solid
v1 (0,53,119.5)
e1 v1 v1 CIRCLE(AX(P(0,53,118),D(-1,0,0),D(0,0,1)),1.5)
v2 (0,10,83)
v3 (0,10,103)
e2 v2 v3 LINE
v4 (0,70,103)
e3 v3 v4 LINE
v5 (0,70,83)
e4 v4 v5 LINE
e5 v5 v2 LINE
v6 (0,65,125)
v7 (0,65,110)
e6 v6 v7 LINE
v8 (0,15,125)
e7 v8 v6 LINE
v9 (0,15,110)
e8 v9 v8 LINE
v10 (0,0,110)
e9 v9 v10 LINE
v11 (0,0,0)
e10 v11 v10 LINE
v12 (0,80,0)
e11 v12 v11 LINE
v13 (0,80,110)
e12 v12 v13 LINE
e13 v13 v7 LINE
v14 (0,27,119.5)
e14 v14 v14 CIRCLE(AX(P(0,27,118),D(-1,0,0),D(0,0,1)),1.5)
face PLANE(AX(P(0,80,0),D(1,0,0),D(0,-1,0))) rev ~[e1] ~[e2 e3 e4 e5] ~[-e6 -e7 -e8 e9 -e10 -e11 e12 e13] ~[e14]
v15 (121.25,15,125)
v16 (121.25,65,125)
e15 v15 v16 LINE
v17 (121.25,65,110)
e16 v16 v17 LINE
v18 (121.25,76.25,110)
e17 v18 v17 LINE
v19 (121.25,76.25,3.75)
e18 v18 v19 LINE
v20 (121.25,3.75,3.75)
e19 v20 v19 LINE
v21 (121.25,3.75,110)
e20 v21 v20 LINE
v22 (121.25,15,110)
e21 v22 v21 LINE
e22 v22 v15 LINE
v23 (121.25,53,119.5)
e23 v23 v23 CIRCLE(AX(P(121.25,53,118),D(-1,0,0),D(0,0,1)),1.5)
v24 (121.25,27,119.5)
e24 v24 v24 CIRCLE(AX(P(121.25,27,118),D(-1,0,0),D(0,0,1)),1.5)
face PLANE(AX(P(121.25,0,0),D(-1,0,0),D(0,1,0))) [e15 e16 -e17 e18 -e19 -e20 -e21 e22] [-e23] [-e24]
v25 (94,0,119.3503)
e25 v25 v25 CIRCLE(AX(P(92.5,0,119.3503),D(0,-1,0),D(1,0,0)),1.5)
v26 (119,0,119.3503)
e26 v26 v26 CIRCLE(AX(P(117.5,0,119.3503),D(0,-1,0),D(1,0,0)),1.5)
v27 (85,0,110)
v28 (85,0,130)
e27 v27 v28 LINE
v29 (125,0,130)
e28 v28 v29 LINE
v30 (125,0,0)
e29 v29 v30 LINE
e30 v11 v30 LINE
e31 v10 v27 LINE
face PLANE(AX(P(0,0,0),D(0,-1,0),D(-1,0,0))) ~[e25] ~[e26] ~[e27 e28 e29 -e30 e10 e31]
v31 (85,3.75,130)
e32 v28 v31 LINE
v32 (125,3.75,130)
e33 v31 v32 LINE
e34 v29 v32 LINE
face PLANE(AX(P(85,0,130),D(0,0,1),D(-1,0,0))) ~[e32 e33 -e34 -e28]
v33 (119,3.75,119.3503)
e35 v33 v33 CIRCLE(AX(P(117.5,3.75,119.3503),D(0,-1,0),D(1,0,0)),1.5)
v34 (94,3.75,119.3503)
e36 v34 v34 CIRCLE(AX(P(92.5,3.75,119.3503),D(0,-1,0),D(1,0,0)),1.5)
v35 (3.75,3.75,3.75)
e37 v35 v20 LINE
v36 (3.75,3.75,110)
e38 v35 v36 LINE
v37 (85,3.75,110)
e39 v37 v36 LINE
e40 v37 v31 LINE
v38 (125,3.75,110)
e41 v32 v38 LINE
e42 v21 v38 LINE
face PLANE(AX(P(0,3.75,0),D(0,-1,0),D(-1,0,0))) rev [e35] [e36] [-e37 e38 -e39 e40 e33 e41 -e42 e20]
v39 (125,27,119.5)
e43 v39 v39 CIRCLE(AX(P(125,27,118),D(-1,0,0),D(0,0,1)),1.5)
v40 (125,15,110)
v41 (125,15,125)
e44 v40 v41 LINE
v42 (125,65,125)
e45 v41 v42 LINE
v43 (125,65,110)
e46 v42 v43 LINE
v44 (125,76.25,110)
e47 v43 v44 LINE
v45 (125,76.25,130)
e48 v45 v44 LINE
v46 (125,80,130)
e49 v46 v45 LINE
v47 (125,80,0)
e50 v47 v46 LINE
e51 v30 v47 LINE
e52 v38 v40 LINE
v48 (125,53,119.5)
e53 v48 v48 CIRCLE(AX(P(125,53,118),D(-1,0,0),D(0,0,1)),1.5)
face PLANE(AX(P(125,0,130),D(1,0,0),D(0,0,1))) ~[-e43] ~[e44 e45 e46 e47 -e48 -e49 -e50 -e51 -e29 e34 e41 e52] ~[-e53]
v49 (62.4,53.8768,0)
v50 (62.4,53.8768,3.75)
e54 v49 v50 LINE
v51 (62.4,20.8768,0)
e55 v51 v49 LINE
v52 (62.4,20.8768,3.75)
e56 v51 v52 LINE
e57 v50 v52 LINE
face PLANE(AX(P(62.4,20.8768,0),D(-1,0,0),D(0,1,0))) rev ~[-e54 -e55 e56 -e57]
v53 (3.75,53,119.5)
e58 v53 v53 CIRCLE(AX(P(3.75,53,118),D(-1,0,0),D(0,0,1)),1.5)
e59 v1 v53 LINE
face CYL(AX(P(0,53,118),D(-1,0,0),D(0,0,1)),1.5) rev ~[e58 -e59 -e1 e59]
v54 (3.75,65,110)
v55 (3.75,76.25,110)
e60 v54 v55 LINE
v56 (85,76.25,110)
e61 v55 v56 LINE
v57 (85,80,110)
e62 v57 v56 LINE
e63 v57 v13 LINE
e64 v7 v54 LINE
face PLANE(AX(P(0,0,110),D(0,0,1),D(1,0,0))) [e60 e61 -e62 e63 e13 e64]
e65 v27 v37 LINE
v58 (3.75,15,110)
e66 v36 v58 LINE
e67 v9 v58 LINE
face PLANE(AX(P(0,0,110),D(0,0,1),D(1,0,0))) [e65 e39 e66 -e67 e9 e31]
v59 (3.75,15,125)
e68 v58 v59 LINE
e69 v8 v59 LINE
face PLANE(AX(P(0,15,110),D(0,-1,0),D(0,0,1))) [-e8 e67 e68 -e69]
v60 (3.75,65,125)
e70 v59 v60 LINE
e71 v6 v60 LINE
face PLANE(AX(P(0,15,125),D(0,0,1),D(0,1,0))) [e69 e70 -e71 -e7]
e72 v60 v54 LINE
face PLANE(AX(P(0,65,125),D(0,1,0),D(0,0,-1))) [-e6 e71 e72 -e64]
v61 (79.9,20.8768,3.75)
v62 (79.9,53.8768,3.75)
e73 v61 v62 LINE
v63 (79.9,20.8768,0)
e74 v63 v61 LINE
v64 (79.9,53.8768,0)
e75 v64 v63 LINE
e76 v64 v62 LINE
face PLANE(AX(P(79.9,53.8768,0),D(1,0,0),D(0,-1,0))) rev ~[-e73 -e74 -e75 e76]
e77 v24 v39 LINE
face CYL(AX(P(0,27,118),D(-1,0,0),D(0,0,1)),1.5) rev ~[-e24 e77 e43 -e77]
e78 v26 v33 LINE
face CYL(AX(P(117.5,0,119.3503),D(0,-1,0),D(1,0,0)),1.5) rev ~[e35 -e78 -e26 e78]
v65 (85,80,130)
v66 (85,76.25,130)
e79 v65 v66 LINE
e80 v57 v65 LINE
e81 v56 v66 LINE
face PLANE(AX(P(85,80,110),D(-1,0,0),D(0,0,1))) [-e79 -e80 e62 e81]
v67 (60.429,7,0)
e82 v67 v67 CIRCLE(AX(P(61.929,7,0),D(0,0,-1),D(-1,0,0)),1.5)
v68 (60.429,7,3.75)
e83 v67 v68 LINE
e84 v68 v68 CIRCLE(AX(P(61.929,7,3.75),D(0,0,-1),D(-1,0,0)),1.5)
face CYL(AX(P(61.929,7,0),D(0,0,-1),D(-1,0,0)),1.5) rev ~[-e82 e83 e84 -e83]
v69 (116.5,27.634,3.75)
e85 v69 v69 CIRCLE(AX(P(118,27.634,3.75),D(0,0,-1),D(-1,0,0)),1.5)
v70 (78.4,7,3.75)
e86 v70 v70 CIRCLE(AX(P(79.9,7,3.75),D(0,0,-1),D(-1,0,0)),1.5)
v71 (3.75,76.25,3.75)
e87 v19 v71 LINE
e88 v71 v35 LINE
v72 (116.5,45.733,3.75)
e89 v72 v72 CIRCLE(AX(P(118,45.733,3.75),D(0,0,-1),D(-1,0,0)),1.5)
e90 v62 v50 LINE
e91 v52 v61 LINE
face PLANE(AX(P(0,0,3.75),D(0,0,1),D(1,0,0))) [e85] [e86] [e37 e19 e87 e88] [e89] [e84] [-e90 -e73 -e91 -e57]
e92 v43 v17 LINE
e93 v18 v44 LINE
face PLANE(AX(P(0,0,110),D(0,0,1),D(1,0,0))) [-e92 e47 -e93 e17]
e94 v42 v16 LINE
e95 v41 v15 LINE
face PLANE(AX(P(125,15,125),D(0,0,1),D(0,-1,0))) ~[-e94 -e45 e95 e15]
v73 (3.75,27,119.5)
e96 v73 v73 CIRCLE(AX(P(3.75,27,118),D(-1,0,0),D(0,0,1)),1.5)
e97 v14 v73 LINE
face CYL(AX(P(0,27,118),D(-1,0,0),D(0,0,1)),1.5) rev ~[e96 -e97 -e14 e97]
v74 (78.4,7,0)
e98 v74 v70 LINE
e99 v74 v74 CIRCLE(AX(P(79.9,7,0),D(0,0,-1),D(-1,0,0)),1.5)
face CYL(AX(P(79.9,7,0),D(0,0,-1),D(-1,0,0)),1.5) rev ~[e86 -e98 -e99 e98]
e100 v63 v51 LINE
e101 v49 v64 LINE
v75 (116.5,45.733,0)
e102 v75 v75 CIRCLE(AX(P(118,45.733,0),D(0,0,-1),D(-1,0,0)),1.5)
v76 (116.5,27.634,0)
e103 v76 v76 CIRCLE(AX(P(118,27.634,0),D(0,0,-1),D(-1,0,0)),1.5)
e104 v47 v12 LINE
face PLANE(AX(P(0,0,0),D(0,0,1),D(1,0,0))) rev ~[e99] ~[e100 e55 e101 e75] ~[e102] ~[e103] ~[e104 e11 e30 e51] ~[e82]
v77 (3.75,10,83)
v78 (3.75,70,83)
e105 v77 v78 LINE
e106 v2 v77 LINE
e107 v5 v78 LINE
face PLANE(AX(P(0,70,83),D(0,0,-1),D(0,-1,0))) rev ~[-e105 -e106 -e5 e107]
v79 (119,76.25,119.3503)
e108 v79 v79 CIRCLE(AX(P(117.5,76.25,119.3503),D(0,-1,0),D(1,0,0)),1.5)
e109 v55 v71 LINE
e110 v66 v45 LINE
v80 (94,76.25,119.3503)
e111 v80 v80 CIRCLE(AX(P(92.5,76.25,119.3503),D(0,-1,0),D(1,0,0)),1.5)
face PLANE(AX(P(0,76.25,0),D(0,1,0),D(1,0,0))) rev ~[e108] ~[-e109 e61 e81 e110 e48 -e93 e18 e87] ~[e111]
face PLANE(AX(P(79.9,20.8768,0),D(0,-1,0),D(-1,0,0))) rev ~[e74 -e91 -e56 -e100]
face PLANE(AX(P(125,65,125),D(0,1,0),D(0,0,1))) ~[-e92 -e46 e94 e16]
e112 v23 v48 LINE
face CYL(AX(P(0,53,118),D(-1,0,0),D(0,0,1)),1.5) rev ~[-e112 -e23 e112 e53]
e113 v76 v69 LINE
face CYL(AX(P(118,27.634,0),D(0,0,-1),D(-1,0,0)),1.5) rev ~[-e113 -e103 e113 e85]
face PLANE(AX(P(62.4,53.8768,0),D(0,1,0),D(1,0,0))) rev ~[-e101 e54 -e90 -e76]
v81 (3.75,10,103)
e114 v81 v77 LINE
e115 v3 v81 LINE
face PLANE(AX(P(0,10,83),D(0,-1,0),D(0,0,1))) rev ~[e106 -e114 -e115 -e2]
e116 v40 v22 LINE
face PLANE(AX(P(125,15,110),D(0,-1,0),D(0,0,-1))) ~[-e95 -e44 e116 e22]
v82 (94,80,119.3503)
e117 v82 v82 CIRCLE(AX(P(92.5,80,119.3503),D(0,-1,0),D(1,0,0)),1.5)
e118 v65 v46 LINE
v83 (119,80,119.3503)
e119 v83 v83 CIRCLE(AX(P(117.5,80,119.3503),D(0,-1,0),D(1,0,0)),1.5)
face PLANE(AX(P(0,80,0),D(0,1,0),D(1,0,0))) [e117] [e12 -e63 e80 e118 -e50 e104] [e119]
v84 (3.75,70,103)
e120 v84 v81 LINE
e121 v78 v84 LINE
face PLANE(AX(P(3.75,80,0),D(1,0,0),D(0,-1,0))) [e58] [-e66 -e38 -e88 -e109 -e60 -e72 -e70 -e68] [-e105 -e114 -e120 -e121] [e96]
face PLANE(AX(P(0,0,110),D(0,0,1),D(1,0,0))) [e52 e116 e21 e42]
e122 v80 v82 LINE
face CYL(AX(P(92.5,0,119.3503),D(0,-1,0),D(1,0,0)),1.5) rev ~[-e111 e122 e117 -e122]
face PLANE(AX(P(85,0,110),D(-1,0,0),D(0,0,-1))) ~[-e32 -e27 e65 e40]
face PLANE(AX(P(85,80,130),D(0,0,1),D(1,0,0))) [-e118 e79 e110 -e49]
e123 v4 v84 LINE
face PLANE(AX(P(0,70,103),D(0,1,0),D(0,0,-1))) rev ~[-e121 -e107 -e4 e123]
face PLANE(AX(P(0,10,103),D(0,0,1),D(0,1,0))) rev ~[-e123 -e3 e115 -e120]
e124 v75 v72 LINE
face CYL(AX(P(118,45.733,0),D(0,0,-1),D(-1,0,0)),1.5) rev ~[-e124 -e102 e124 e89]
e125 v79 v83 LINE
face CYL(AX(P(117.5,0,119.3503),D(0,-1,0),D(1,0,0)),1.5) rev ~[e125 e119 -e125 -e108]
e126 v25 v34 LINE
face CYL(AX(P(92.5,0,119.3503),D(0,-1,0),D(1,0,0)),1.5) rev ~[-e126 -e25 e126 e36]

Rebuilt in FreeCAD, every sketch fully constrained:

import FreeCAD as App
import Part
import Sketcher

V = App.Vector


def faces_at(feature, points):
    """Names of the faces that lie closest to the given points."""
    faces = feature.Shape.Faces
    near = lambda p: min(range(len(faces)), key=lambda i: faces[i].distToShape(Part.Vertex(*p))[0])
    return sorted({f"Face{near(p) + 1}" for p in points})


def add_polygon(sketch, points):
    """Adds a closed chain of lines whose ends are joined by coincident constraints."""
    first, n = sketch.GeometryCount, len(points)
    for a, b in zip(points, points[1:] + points[:1]):
        sketch.addGeometry(Part.LineSegment(App.Vector(*a, 0), App.Vector(*b, 0)), False)
    for i in range(n):
        sketch.addConstraint(Sketcher.Constraint("Coincident", first + i, 2, first + (i + 1) % n, 1))

doc = App.newDocument("Part")
body = doc.addObject("PartDesign::Body", "Body")

# Sketch on XY plane
sketch1 = doc.addObject("Sketcher::SketchObject", "Sketch")
body.addObject(sketch1)
sketch1.AttachmentSupport = (doc.XY_Plane, [""])
sketch1.MapMode = "FlatFace"
add_polygon(sketch1, [(0, 80), (0, 0), (125, 0), (125, 80)])  # lines 0-3
sketch1.addConstraint(Sketcher.Constraint("Vertical", 0))
sketch1.addConstraint(Sketcher.Constraint("Horizontal", 1))
sketch1.addConstraint(Sketcher.Constraint("Vertical", 2))
sketch1.addConstraint(Sketcher.Constraint("Horizontal", 3))
sketch1.addConstraint(Sketcher.Constraint("Coincident", 0, 2, -1, 1))
sketch1.addConstraint(Sketcher.Constraint("DistanceX", 1, 1, 1, 2, 125.0))
sketch1.addConstraint(Sketcher.Constraint("DistanceY", 0, 2, 0, 1, 80.0))
pad1 = doc.addObject("PartDesign::Pad", "Pad")
body.addObject(pad1)
pad1.Profile = sketch1
pad1.Length = 110
doc.recompute()

thickness = doc.addObject("PartDesign::Thickness", "Thickness")
body.addObject(thickness)
thickness.Base = (pad1, faces_at(pad1, [(83.333, 26.667, 110)]))
thickness.Value = 3.75
thickness.Reversed = True
thickness.Join = "Intersection"

# Sketch on XY plane
sketch2 = doc.addObject("Sketcher::SketchObject", "Sketch001")
body.addObject(sketch2)
sketch2.AttachmentSupport = (doc.XY_Plane, [""])
sketch2.MapMode = "FlatFace"
sketch2.addGeometry(Part.Circle(V(118, 27.6, 0), V(0, 0, 1), 1.5), False)  # 0
sketch2.addGeometry(Part.Circle(V(118, 45.7, 0), V(0, 0, 1), 1.5), False)  # 1
sketch2.addGeometry(Part.Circle(V(79.9, 7, 0), V(0, 0, 1), 1.5), False)  # 2
sketch2.addGeometry(Part.Circle(V(61.9, 7, 0), V(0, 0, 1), 1.5), False)  # 3
add_polygon(sketch2, [(62.4, 20.9), (62.4, 53.9), (79.9, 53.9), (79.9, 20.9)])  # lines 4-7
sketch2.addConstraint(Sketcher.Constraint("Vertical", 4))
sketch2.addConstraint(Sketcher.Constraint("Horizontal", 5))
sketch2.addConstraint(Sketcher.Constraint("Vertical", 6))
sketch2.addConstraint(Sketcher.Constraint("Horizontal", 7))
sketch2.addConstraint(Sketcher.Constraint("Equal", 0, 1))
sketch2.addConstraint(Sketcher.Constraint("Equal", 1, 2))
sketch2.addConstraint(Sketcher.Constraint("Equal", 2, 3))
sketch2.addConstraint(Sketcher.Constraint("Horizontal", 2, 3, 3, 3))
sketch2.addConstraint(Sketcher.Constraint("Vertical", 0, 3, 1, 3))
sketch2.addConstraint(Sketcher.Constraint("Vertical", 2, 3, 5, 2))
sketch2.addConstraint(Sketcher.Constraint("Diameter", 0, 3.0))
sketch2.addConstraint(Sketcher.Constraint("DistanceY", 4, 1, 4, 2, 33.0))
sketch2.addConstraint(Sketcher.Constraint("DistanceX", 5, 1, 5, 2, 17.5))
sketch2.addConstraint(Sketcher.Constraint("DistanceY", -1, 1, 2, 3, 7.0))
sketch2.addConstraint(Sketcher.Constraint("DistanceX", -1, 1, 0, 3, 118.0))
sketch2.addConstraint(Sketcher.Constraint("DistanceY", -1, 1, 0, 3, 27.634))
sketch2.addConstraint(Sketcher.Constraint("DistanceY", -1, 1, 1, 3, 45.733))
sketch2.addConstraint(Sketcher.Constraint("DistanceX", -1, 1, 2, 3, 79.9))
sketch2.addConstraint(Sketcher.Constraint("DistanceY", -1, 1, 6, 2, 20.8768))
sketch2.addConstraint(Sketcher.Constraint("DistanceX", -1, 1, 3, 3, 61.929))
pocket1 = doc.addObject("PartDesign::Pocket", "Pocket")
body.addObject(pocket1)
pocket1.Profile = sketch2
pocket1.Length = 20
pocket1.Reversed = True

# Sketch on XZ plane
sketch3 = doc.addObject("Sketcher::SketchObject", "Sketch002")
body.addObject(sketch3)
sketch3.AttachmentSupport = (doc.XZ_Plane, [""])
sketch3.MapMode = "FlatFace"
sketch3.AttachmentOffset = App.Placement(V(0, 0, -80), App.Rotation())
add_polygon(sketch3, [(125, 110), (85, 110), (85, 130), (125, 130)])  # lines 0-3
sketch3.addConstraint(Sketcher.Constraint("Horizontal", 0))
sketch3.addConstraint(Sketcher.Constraint("Vertical", 1))
sketch3.addConstraint(Sketcher.Constraint("Horizontal", 2))
sketch3.addConstraint(Sketcher.Constraint("Vertical", 3))
sketch3.addConstraint(Sketcher.Constraint("DistanceX", 0, 2, 0, 1, 40.0))
sketch3.addConstraint(Sketcher.Constraint("DistanceY", 1, 1, 1, 2, 20.0))
sketch3.addConstraint(Sketcher.Constraint("DistanceX", -1, 1, 0, 2, 85.0))
sketch3.addConstraint(Sketcher.Constraint("DistanceY", -1, 1, 0, 2, 110.0))
pad2 = doc.addObject("PartDesign::Pad", "Pad001")
body.addObject(pad2)
pad2.Profile = sketch3
pad2.Length = 3.75
doc.recompute()

datumplane = doc.addObject("PartDesign::Plane", "DatumPlane")
body.addObject(datumplane)
datumplane.AttachmentSupport = (doc.XZ_Plane, [""])
datumplane.MapMode = "FlatFace"
datumplane.AttachmentOffset = App.Placement(V(0, 0, -40), App.Rotation())
mirrored = doc.addObject("PartDesign::Mirrored", "Mirrored")
body.addObject(mirrored)
mirrored.Originals = [pad2]
mirrored.MirrorPlane = (datumplane, [""])
body.Tip = mirrored

# Sketch on YZ plane
sketch4 = doc.addObject("Sketcher::SketchObject", "Sketch003")
body.addObject(sketch4)
sketch4.AttachmentSupport = (doc.YZ_Plane, [""])
sketch4.MapMode = "FlatFace"
add_polygon(sketch4, [(65, 110), (15, 110), (15, 125), (65, 125)])  # lines 0-3
sketch4.addConstraint(Sketcher.Constraint("Horizontal", 0))
sketch4.addConstraint(Sketcher.Constraint("Vertical", 1))
sketch4.addConstraint(Sketcher.Constraint("Horizontal", 2))
sketch4.addConstraint(Sketcher.Constraint("Vertical", 3))
sketch4.addConstraint(Sketcher.Constraint("DistanceX", 0, 2, 0, 1, 50.0))
sketch4.addConstraint(Sketcher.Constraint("DistanceY", 1, 1, 1, 2, 15.0))
sketch4.addConstraint(Sketcher.Constraint("DistanceX", -1, 1, 0, 2, 15.0))
sketch4.addConstraint(Sketcher.Constraint("DistanceY", -1, 1, 0, 2, 110.0))
pad3 = doc.addObject("PartDesign::Pad", "Pad002")
body.addObject(pad3)
pad3.Profile = sketch4
pad3.Length = 3.75
doc.recompute()

datumplane2 = doc.addObject("PartDesign::Plane", "DatumPlane001")
body.addObject(datumplane2)
datumplane2.AttachmentSupport = (doc.YZ_Plane, [""])
datumplane2.MapMode = "FlatFace"
datumplane2.AttachmentOffset = App.Placement(V(0, 0, 62.5), App.Rotation())
mirrored2 = doc.addObject("PartDesign::Mirrored", "Mirrored001")
body.addObject(mirrored2)
mirrored2.Originals = [pad3]
mirrored2.MirrorPlane = (datumplane2, [""])
body.Tip = mirrored2

# Sketch on YZ plane
sketch5 = doc.addObject("Sketcher::SketchObject", "Sketch004")
body.addObject(sketch5)
sketch5.AttachmentSupport = (doc.YZ_Plane, [""])
sketch5.MapMode = "FlatFace"
add_polygon(sketch5, [(10, 103), (70, 103), (70, 83), (10, 83)])  # lines 0-3
sketch5.addConstraint(Sketcher.Constraint("Horizontal", 0))
sketch5.addConstraint(Sketcher.Constraint("Vertical", 1))
sketch5.addConstraint(Sketcher.Constraint("Horizontal", 2))
sketch5.addConstraint(Sketcher.Constraint("Vertical", 3))
sketch5.addConstraint(Sketcher.Constraint("DistanceX", 0, 1, 0, 2, 60.0))
sketch5.addConstraint(Sketcher.Constraint("DistanceY", 1, 2, 1, 1, 20.0))
sketch5.addConstraint(Sketcher.Constraint("DistanceX", -1, 1, 2, 2, 10.0))
sketch5.addConstraint(Sketcher.Constraint("DistanceY", -1, 1, 0, 2, 103.0))
pocket2 = doc.addObject("PartDesign::Pocket", "Pocket001")
body.addObject(pocket2)
pocket2.Profile = sketch5
pocket2.Length = 10
pocket2.Reversed = True

# Sketch on YZ plane
sketch6 = doc.addObject("Sketcher::SketchObject", "Sketch005")
body.addObject(sketch6)
sketch6.AttachmentSupport = (doc.YZ_Plane, [""])
sketch6.MapMode = "FlatFace"
sketch6.addGeometry(Part.Circle(V(53, 118, 0), V(0, 0, 1), 1.5), False)
sketch6.addGeometry(Part.Circle(V(27, 118, 0), V(0, 0, 1), 1.5), False)
sketch6.addConstraint(Sketcher.Constraint("Equal", 0, 1))
sketch6.addConstraint(Sketcher.Constraint("Horizontal", 0, 3, 1, 3))
sketch6.addConstraint(Sketcher.Constraint("Diameter", 0, 3.0))
sketch6.addConstraint(Sketcher.Constraint("DistanceX", -1, 1, 0, 3, 53.0))
sketch6.addConstraint(Sketcher.Constraint("DistanceY", -1, 1, 0, 3, 118.0))
sketch6.addConstraint(Sketcher.Constraint("DistanceX", -1, 1, 1, 3, 27.0))
pocket3 = doc.addObject("PartDesign::Pocket", "Pocket002")
body.addObject(pocket3)
pocket3.Profile = sketch6
pocket3.Length = 200
pocket3.Reversed = True

# Sketch on XZ plane
sketch7 = doc.addObject("Sketcher::SketchObject", "Sketch006")
body.addObject(sketch7)
sketch7.AttachmentSupport = (doc.XZ_Plane, [""])
sketch7.MapMode = "FlatFace"
sketch7.addGeometry(Part.Circle(V(92.5, 119.4, 0), V(0, 0, 1), 1.5), False)
sketch7.addGeometry(Part.Circle(V(117.5, 119.4, 0), V(0, 0, 1), 1.5), False)
sketch7.addConstraint(Sketcher.Constraint("Equal", 0, 1))
sketch7.addConstraint(Sketcher.Constraint("Horizontal", 0, 3, 1, 3))
sketch7.addConstraint(Sketcher.Constraint("Diameter", 0, 3.0))
sketch7.addConstraint(Sketcher.Constraint("DistanceX", 0, 3, 1, 3, 25.0))
sketch7.addConstraint(Sketcher.Constraint("DistanceX", -1, 1, 0, 3, 92.5))
sketch7.addConstraint(Sketcher.Constraint("DistanceY", -1, 1, 0, 3, 119.3503))
pocket4 = doc.addObject("PartDesign::Pocket", "Pocket003")
body.addObject(pocket4)
pocket4.Profile = sketch7
pocket4.Length = 100

doc.recompute()
